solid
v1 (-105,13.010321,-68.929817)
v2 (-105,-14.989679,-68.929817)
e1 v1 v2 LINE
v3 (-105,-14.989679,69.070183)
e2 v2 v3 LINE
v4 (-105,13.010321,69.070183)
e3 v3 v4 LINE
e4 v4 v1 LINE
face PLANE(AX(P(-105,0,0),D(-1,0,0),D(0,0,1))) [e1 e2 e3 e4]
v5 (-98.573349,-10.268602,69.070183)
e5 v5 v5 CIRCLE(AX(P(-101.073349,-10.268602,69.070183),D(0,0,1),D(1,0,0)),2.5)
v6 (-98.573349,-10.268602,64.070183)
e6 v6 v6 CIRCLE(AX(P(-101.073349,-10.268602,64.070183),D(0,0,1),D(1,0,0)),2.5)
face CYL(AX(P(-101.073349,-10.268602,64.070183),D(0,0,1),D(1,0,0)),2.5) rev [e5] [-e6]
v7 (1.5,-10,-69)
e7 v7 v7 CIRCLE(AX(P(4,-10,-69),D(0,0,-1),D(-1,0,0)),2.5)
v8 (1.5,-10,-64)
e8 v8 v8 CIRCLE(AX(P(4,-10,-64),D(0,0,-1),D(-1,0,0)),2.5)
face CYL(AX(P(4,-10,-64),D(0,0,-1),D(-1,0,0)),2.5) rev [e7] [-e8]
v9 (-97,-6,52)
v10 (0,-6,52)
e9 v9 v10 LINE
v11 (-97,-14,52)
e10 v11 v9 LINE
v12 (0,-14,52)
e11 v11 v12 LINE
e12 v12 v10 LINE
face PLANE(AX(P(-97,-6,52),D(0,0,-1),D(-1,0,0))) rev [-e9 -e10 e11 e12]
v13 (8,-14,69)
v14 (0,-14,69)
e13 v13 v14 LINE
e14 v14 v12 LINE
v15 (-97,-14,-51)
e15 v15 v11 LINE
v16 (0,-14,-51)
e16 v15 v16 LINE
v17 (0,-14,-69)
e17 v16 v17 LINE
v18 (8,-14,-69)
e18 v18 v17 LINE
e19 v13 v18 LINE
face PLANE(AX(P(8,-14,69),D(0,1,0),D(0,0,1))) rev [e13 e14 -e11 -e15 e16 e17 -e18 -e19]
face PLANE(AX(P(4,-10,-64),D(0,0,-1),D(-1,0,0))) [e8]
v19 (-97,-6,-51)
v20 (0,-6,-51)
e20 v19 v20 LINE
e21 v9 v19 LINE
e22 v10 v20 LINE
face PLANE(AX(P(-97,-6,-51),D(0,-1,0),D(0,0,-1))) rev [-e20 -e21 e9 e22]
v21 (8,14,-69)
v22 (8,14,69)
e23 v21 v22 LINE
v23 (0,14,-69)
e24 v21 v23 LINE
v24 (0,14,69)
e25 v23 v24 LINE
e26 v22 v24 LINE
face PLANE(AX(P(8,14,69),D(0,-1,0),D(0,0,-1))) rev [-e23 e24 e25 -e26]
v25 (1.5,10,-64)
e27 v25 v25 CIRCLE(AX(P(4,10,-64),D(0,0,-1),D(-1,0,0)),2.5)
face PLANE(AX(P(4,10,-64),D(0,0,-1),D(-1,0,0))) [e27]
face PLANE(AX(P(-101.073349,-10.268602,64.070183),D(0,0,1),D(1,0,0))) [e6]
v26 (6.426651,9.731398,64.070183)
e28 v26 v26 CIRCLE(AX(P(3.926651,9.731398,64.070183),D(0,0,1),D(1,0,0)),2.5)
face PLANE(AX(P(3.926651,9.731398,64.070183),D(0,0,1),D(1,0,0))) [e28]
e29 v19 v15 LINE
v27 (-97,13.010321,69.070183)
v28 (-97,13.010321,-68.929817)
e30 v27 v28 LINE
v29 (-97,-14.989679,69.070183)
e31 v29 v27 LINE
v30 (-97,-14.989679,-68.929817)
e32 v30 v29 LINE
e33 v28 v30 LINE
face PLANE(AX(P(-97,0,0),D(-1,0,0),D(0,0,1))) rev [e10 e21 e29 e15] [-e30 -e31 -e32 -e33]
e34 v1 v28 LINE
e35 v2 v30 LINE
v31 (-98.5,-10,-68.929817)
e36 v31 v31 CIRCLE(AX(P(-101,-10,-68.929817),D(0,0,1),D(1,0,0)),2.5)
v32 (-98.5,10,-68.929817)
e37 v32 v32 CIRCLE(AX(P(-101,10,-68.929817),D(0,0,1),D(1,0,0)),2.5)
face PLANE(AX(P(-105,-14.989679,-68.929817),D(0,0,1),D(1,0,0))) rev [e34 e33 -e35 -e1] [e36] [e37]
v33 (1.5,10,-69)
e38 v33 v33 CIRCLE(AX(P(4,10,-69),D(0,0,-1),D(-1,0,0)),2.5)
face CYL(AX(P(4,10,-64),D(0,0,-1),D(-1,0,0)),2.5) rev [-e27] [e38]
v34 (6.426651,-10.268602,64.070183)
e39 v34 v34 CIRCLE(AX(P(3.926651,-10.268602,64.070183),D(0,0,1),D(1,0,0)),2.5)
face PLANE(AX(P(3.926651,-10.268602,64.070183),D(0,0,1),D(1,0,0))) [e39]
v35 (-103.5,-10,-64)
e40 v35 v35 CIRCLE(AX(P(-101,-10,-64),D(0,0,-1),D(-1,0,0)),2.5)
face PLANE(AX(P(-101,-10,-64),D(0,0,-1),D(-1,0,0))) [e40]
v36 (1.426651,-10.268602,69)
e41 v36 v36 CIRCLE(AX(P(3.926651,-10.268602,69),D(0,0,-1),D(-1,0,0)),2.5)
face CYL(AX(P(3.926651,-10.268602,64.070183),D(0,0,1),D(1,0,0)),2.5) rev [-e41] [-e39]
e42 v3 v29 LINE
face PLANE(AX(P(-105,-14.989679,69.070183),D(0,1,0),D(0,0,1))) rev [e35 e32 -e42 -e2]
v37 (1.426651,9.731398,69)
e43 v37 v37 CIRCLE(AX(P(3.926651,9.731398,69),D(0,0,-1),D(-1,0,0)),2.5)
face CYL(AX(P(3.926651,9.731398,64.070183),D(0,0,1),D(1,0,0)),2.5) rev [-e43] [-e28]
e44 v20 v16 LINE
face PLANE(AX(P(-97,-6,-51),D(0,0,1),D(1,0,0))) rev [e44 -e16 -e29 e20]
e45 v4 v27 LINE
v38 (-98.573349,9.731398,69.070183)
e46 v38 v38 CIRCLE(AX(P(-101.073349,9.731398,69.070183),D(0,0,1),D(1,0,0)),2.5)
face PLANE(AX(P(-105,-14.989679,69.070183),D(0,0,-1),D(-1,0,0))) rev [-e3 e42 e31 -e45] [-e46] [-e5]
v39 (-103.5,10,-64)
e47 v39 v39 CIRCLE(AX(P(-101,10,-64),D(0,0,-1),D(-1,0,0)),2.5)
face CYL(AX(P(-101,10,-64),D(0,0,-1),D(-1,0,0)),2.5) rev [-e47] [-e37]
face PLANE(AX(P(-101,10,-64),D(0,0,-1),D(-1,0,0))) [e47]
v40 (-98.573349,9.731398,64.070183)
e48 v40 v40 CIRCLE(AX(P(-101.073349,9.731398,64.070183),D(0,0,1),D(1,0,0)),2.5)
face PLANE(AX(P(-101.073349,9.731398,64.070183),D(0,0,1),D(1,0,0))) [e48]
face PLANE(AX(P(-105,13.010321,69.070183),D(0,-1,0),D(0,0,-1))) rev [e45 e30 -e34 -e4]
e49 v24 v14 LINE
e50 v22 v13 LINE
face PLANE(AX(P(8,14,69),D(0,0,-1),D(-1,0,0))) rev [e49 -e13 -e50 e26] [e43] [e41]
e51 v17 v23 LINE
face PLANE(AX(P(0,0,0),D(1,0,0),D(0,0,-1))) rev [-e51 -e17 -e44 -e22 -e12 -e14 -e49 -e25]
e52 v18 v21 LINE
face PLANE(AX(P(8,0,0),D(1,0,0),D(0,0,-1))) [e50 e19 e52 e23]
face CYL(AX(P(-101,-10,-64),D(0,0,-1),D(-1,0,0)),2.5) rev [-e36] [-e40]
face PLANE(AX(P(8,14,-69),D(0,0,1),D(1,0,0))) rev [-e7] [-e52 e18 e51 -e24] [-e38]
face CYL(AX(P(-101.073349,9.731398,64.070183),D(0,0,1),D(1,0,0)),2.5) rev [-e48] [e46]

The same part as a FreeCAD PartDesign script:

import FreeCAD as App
import Part
import Sketcher
from FreeCAD import Vector


def add_polygon(sketch, points):
    """Adds a closed chain of lines whose ends are joined by coincident constraints."""
    first, n = sketch.GeometryCount, len(points)
    for a, b in zip(points, points[1:] + points[:1]):
        sketch.addGeometry(Part.LineSegment(App.Vector(*a, 0), App.Vector(*b, 0)), False)
    for i in range(n):
        sketch.addConstraint(Sketcher.Constraint("Coincident", first + i, 2, first + (i + 1) % n, 1))

doc = App.newDocument("Part")
body = doc.addObject("PartDesign::Body", "Body")

sketch1 = doc.addObject("Sketcher::SketchObject", "Sketch")
body.addObject(sketch1)
sketch1.AttachmentSupport = (doc.YZ_Plane, [""])
sketch1.MapMode = "FlatFace"
add_polygon(sketch1, [(14, 69), (-14, 69), (-14, -69), (14, -69)])
sketch1.addConstraint([
    Sketcher.Constraint("Horizontal", 0),
    Sketcher.Constraint("Vertical", 1),
    Sketcher.Constraint("Horizontal", 2),
    Sketcher.Constraint("Vertical", 3),
    Sketcher.Constraint("Symmetric", 0, 2, 2, 2, -1, 1),
    Sketcher.Constraint("DistanceX", 0, 2, 0, 1, 28.0),
    Sketcher.Constraint("DistanceY", 1, 2, 1, 1, 138.0),
])
pad1 = doc.addObject("PartDesign::Pad", "Pad")
body.addObject(pad1)
pad1.Profile = sketch1
pad1.Length = 8

sketch2 = doc.addObject("Sketcher::SketchObject", "Sketch001")
body.addObject(sketch2)
sketch2.AttachmentSupport = (doc.YZ_Plane, [""])
sketch2.MapMode = "FlatFace"
add_polygon(sketch2, [(-6, -51), (-14, -51), (-14, 52), (-6, 52)])
sketch2.addConstraint([
    Sketcher.Constraint("Horizontal", 0),
    Sketcher.Constraint("Vertical", 1),
    Sketcher.Constraint("Horizontal", 2),
    Sketcher.Constraint("Vertical", 3),
    Sketcher.Constraint("DistanceX", 0, 2, 0, 1, 8.0),
    Sketcher.Constraint("DistanceY", 1, 1, 1, 2, 103.0),
    Sketcher.Constraint("DistanceX", 0, 2, -1, 1, 14.0),
    Sketcher.Constraint("DistanceY", 0, 2, -1, 1, 51.0),
])
pad2 = doc.addObject("PartDesign::Pad", "Pad001")
body.addObject(pad2)
pad2.Profile = sketch2
pad2.Length = 97
pad2.Reversed = True

sketch3 = doc.addObject("Sketcher::SketchObject", "Sketch002")
body.addObject(sketch3)
sketch3.AttachmentSupport = (doc.YZ_Plane, [""])
sketch3.MapMode = "FlatFace"
sketch3.AttachmentOffset = App.Placement(Vector(0, 0, -97), App.Rotation())
add_polygon(sketch3, [(13, -69), (-15, -69), (-15, 69), (13, 69)])
sketch3.addConstraint([
    Sketcher.Constraint("Horizontal", 0),
    Sketcher.Constraint("Vertical", 1),
    Sketcher.Constraint("Horizontal", 2),
    Sketcher.Constraint("Vertical", 3),
    Sketcher.Constraint("DistanceX", 0, 2, 0, 1, 28.0),
    Sketcher.Constraint("DistanceY", 1, 1, 1, 2, 138.0),
    Sketcher.Constraint("DistanceX", 0, 2, -1, 1, 14.989679),
    Sketcher.Constraint("DistanceY", 0, 2, -1, 1, 68.929817),
])
pad3 = doc.addObject("PartDesign::Pad", "Pad002")
body.addObject(pad3)
pad3.Profile = sketch3
pad3.Length = 8
pad3.Reversed = True

sketch4 = doc.addObject("Sketcher::SketchObject", "Sketch003")
body.addObject(sketch4)
sketch4.AttachmentSupport = (doc.XY_Plane, [""])
sketch4.MapMode = "FlatFace"
sketch4.AttachmentOffset = App.Placement(Vector(0, 0, 69.070183), App.Rotation())
sketch4.addGeometry([
    Part.Circle(Vector(-101.1, 9.7, 0), Vector(0, 0, 1), 2.5),
    Part.Circle(Vector(3.9, 9.7, 0), Vector(0, 0, 1), 2.5),
    Part.Circle(Vector(3.9, -10.3, 0), Vector(0, 0, 1), 2.5),
    Part.Circle(Vector(-101.1, -10.3, 0), Vector(0, 0, 1), 2.5),
], False)
sketch4.addConstraint([
    Sketcher.Constraint("Equal", 0, 1),
    Sketcher.Constraint("Equal", 1, 2),
    Sketcher.Constraint("Equal", 2, 3),
    Sketcher.Constraint("Horizontal", 0, 3, 1, 3),
    Sketcher.Constraint("Horizontal", 2, 3, 3, 3),
    Sketcher.Constraint("Vertical", 1, 3, 2, 3),
    Sketcher.Constraint("Vertical", 0, 3, 3, 3),
    Sketcher.Constraint("Diameter", 0, 5.0),
    Sketcher.Constraint("DistanceX", 0, 3, 1, 3, 105.0),
    Sketcher.Constraint("DistanceY", 2, 3, 1, 3, 20.0),
    Sketcher.Constraint("DistanceY", -1, 1, 0, 3, 9.731398),
    Sketcher.Constraint("DistanceX", 0, 3, -1, 1, 101.073349),
])
pocket1 = doc.addObject("PartDesign::Pocket", "Pocket")
body.addObject(pocket1)
pocket1.Profile = sketch4
pocket1.Length = 5

sketch5 = doc.addObject("Sketcher::SketchObject", "Sketch004")
body.addObject(sketch5)
sketch5.AttachmentSupport = (doc.XY_Plane, [""])
sketch5.MapMode = "FlatFace"
sketch5.AttachmentOffset = App.Placement(Vector(0, 0, -69), App.Rotation())
sketch5.addGeometry([
    Part.Circle(Vector(4, 10, 0), Vector(0, 0, 1), 2.5),
    Part.Circle(Vector(-101, 10, 0), Vector(0, 0, 1), 2.5),
    Part.Circle(Vector(-101, -10, 0), Vector(0, 0, 1), 2.5),
    Part.Circle(Vector(4, -10, 0), Vector(0, 0, 1), 2.5),
], False)
sketch5.addConstraint([
    Sketcher.Constraint("Equal", 0, 1),
    Sketcher.Constraint("Equal", 1, 2),
    Sketcher.Constraint("Equal", 2, 3),
    Sketcher.Constraint("Symmetric", 1, 3, 2, 3, -1),
    Sketcher.Constraint("Symmetric", 0, 3, 3, 3, -1),
    Sketcher.Constraint("Horizontal", 0, 3, 1, 3),
    Sketcher.Constraint("Diameter", 0, 5.0),
    Sketcher.Constraint("DistanceX", -1, 1, 0, 3, 4.0),
    Sketcher.Constraint("DistanceY", -1, 1, 0, 3, 10.0),
    Sketcher.Constraint("DistanceX", 1, 3, -1, 1, 101.0),
])
pocket2 = doc.addObject("PartDesign::Pocket", "Pocket001")
body.addObject(pocket2)
pocket2.Profile = sketch5
pocket2.Length = 5
pocket2.Reversed = True

doc.recompute()
